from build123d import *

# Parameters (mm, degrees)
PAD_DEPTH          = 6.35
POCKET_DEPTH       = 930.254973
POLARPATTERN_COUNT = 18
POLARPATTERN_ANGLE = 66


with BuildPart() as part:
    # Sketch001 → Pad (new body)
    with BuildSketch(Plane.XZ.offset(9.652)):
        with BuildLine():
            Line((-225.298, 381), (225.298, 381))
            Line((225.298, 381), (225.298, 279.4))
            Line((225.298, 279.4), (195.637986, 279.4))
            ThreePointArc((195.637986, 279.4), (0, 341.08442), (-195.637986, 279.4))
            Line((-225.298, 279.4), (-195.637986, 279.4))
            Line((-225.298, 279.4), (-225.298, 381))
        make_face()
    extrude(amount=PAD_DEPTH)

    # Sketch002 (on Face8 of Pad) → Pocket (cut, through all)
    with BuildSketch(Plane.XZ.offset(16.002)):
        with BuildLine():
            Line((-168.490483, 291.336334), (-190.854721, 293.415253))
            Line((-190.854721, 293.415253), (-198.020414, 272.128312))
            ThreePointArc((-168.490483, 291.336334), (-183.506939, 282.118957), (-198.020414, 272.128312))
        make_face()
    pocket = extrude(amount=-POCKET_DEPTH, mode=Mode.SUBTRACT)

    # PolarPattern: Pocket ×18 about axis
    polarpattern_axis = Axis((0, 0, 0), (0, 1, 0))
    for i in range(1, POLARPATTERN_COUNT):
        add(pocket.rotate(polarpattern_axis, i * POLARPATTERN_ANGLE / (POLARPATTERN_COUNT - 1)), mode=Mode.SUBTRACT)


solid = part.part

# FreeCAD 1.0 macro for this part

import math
import FreeCAD as App
import Part
import Sketcher
from FreeCAD import Vector
Q = App.Units.Quantity

doc = App.newDocument("Part")
body = doc.addObject("PartDesign::Body", "Body")

# Sketch on XZ plane
sketch1 = body.newObject("Sketcher::SketchObject", "Sketch")
sketch1.AttachmentSupport = (doc.getObject("XZ_Plane"), [""])
sketch1.MapMode = "FlatFace"
sketch1.AttachmentOffset = App.Placement(Vector(0, 0, 0.38 * 25.4), App.Rotation())
sketch1.addGeometry([
    Part.LineSegment(Vector(225, 381, 0), Vector(-225, 381, 0)),  # 0
    Part.LineSegment(Vector(-225, 381, 0), Vector(-225, 279, 0)),  # 1
    Part.LineSegment(Vector(-225, 279, 0), Vector(-196, 279, 0)),  # 2
    Part.ArcOfCircle(Part.Circle(Vector(0, 0, 0), Vector(0, 0, 1), 341), math.radians(55), math.radians(125)),  # 3
    Part.LineSegment(Vector(196, 279, 0), Vector(225, 279, 0)),  # 4
    Part.LineSegment(Vector(225, 279, 0), Vector(225, 381, 0)),  # 5
], False)
sketch1.addConstraint([
    Sketcher.Constraint("Coincident", 0, 2, 1, 1),
    Sketcher.Constraint("Coincident", 1, 2, 2, 1),
    Sketcher.Constraint("Coincident", 2, 2, 3, 2),
    Sketcher.Constraint("Coincident", 3, 1, 4, 1),
    Sketcher.Constraint("Coincident", 4, 2, 5, 1),
    Sketcher.Constraint("Coincident", 5, 2, 0, 1),
    Sketcher.Constraint("Horizontal", 0),
    Sketcher.Constraint("Vertical", 1),
    Sketcher.Constraint("Horizontal", 2),
    Sketcher.Constraint("Horizontal", 4),
    Sketcher.Constraint("Vertical", 5),
    Sketcher.Constraint("Coincident", 3, 3, -1, 1),
    Sketcher.Constraint("Symmetric", 1, 2, 4, 2, -2),
    Sketcher.Constraint("DistanceY", 1, 2, 1, 1, Q("4 in")),
    Sketcher.Constraint("DistanceY", -1, 1, 0, 2, Q("15 in")),
    Sketcher.Constraint("DistanceX", 0, 2, 0, 1, Q("17.74 in")),
    Sketcher.Constraint("Radius", 3, 341.08442),
])
pad1 = body.newObject("PartDesign::Pad", "Pad")
pad1.Profile = sketch1
pad1.Length = Q("0.25 in")

# Sketch on XZ plane
sketch2 = body.newObject("Sketcher::SketchObject", "Sketch001")
sketch2.AttachmentSupport = (doc.getObject("XZ_Plane"), [""])
sketch2.MapMode = "FlatFace"
sketch2.AttachmentOffset = App.Placement(Vector(0, 0, 0.63 * 25.4), App.Rotation())
sketch2.addGeometry([
    Part.LineSegment(Vector(-168, 291, 0), Vector(-191, 293, 0)),
    Part.LineSegment(Vector(-191, 293, 0), Vector(-198, 272, 0)),
    Part.ArcOfCircle(Part.Circle(Vector(0, 0, 0), Vector(0, 0, 1), 337), math.radians(120.04), math.radians(126.04)),
], False)
sketch2.addConstraint([
    Sketcher.Constraint("Coincident", 0, 2, 1, 1),
    Sketcher.Constraint("Coincident", 1, 2, 2, 2),
    Sketcher.Constraint("Coincident", 2, 1, 0, 1),
    Sketcher.Constraint("Equal", 0, 1),
    Sketcher.Constraint("Radius", 2, 336.549893),
    Sketcher.Constraint("DistanceX", 0, 2, -1, 1, 190.854721),
    Sketcher.Constraint("DistanceY", -1, 1, 1, 2, 272.128312),
    Sketcher.Constraint("DistanceX", 0, 2, 2, 3, 190.854661),
    Sketcher.Constraint("DistanceY", 1, 2, 0, 2, 21.286941),
    Sketcher.Constraint("DistanceY", 2, 1, 0, 2, 2.078919),
])
pocket1 = body.newObject("PartDesign::Pocket", "Pocket")
pocket1.Profile = sketch2
pocket1.Type = "ThroughAll"
doc.recompute()

polarpattern = body.newObject("PartDesign::PolarPattern", "PolarPattern")
polarpattern.Originals = [pocket1]
polarpattern.Axis = (doc.getObject("Y_Axis"), [""])
polarpattern.Angle = 66
polarpattern.Occurrences = 18
body.Tip = polarpattern

doc.recompute()
